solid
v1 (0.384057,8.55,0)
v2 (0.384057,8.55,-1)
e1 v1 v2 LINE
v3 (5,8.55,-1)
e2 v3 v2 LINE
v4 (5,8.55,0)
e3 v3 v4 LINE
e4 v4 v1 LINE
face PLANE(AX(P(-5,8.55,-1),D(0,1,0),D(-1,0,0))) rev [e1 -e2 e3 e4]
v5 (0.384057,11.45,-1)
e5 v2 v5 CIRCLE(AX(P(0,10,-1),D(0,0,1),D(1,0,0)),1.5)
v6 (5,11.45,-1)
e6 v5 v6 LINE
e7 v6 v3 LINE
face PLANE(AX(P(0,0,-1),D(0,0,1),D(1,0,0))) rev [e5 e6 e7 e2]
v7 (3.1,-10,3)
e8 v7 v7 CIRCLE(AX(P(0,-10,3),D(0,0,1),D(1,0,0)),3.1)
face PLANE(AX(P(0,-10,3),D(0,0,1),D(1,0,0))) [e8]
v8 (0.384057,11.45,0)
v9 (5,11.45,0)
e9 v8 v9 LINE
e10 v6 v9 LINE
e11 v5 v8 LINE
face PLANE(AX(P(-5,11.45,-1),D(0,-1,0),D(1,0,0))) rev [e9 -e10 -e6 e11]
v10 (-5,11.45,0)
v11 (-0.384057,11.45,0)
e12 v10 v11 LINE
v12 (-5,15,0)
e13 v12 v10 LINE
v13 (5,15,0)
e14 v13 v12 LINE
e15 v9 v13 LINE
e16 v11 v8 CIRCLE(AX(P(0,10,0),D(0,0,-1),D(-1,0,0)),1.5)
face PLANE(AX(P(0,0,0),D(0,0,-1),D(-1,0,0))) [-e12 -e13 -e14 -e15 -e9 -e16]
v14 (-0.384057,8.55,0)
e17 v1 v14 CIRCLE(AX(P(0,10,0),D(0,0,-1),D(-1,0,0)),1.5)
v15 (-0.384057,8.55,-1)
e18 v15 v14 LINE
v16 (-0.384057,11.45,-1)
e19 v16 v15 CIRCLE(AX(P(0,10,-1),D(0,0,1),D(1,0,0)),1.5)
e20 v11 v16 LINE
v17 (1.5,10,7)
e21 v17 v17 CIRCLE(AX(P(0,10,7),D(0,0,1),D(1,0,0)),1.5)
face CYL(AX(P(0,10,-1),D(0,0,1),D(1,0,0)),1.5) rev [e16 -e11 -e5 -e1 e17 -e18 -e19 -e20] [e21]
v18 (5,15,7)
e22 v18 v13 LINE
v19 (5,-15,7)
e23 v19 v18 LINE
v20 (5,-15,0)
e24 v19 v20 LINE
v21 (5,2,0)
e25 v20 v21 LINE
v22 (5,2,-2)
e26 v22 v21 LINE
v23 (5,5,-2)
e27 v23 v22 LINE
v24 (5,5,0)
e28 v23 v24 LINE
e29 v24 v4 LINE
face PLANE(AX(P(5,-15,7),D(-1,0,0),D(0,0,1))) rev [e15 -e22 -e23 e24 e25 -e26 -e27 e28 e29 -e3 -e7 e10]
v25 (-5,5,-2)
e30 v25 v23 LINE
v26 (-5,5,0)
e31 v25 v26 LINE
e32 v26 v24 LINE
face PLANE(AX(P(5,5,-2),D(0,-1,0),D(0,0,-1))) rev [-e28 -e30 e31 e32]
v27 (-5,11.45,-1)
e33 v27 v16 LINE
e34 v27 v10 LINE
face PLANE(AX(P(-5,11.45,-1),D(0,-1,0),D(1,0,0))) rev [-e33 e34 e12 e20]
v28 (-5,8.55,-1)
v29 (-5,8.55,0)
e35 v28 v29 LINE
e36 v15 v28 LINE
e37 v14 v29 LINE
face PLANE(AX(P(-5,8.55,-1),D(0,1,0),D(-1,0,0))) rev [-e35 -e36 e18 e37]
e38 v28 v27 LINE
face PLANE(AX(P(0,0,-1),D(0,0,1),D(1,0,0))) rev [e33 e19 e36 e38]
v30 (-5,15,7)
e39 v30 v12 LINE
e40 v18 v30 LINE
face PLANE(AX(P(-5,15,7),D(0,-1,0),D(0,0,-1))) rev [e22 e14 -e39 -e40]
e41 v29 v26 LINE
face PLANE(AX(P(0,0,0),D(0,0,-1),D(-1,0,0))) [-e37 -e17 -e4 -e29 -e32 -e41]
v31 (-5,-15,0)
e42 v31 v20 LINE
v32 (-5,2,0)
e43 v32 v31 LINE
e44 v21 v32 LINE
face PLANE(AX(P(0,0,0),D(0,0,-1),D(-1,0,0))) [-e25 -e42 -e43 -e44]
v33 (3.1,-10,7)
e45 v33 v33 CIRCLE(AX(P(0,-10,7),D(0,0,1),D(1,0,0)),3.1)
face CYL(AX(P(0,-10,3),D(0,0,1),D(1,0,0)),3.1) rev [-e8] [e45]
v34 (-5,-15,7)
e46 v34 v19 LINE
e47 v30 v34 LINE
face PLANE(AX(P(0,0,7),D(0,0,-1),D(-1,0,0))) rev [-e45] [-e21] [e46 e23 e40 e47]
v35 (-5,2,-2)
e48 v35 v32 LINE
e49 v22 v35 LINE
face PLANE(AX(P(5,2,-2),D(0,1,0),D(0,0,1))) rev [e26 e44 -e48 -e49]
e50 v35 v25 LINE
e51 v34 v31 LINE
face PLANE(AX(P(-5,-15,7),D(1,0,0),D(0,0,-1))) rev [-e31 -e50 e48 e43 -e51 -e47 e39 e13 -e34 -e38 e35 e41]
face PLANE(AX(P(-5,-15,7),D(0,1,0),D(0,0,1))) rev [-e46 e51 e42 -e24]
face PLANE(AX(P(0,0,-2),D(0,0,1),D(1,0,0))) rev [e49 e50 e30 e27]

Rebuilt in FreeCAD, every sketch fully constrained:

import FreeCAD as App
import Part
import Sketcher
from FreeCAD import Vector

doc = App.newDocument("Part")
body = doc.addObject("PartDesign::Body", "Body")

sketch1 = body.newObject("Sketcher::SketchObject", "Sketch")
sketch1.AttachmentSupport = (doc.getObject("XY_Plane"), [""])
sketch1.MapMode = "FlatFace"
sketch1.addGeometry([
    Part.LineSegment(Vector(-5, 15, 0), Vector(-5, -15, 0)),
    Part.LineSegment(Vector(-5, -15, 0), Vector(5, -15, 0)),
    Part.LineSegment(Vector(5, -15, 0), Vector(5, 15, 0)),
    Part.LineSegment(Vector(5, 15, 0), Vector(-5, 15, 0)),
], False)
sketch1.addConstraint([
    Sketcher.Constraint("Coincident", 0, 2, 1, 1),
    Sketcher.Constraint("Coincident", 1, 2, 2, 1),
    Sketcher.Constraint("Coincident", 2, 2, 3, 1),
    Sketcher.Constraint("Coincident", 3, 2, 0, 1),
    Sketcher.Constraint("Vertical", 0),
    Sketcher.Constraint("Horizontal", 1),
    Sketcher.Constraint("Vertical", 2),
    Sketcher.Constraint("Horizontal", 3),
    Sketcher.Constraint("Symmetric", 0, 2, 2, 2, -1, 1),
    Sketcher.Constraint("DistanceX", 1, 1, 1, 2, 10.0),
    Sketcher.Constraint("DistanceY", 0, 2, 0, 1, 30.0),
])
pad1 = body.newObject("PartDesign::Pad", "Pad")
pad1.Profile = sketch1
pad1.Length = 7

sketch2 = body.newObject("Sketcher::SketchObject", "Sketch001")
sketch2.AttachmentSupport = (doc.getObject("XY_Plane"), [""])
sketch2.MapMode = "FlatFace"
sketch2.AttachmentOffset = App.Placement(Vector(0, 0, 7), App.Rotation())
sketch2.addGeometry(Part.Circle(Vector(0, -10, 0), Vector(0, 0, 1), 3.1), False)
sketch2.addConstraint([
    Sketcher.Constraint("PointOnObject", 0, 3, -2),
    Sketcher.Constraint("Diameter", 0, 6.2),
    Sketcher.Constraint("DistanceY", 0, 3, -1, 1, 10.0),
])
pocket1 = body.newObject("PartDesign::Pocket", "Pocket")
pocket1.Profile = sketch2
pocket1.Length = 4

sketch3 = body.newObject("Sketcher::SketchObject", "Sketch002")
sketch3.AttachmentSupport = (doc.getObject("XY_Plane"), [""])
sketch3.MapMode = "FlatFace"
sketch3.addGeometry([
    Part.LineSegment(Vector(5, 11.4, 0), Vector(5, 8.6, 0)),
    Part.LineSegment(Vector(5, 8.6, 0), Vector(-5, 8.6, 0)),
    Part.LineSegment(Vector(-5, 8.6, 0), Vector(-5, 11.4, 0)),
    Part.LineSegment(Vector(-5, 11.4, 0), Vector(5, 11.4, 0)),
], False)
sketch3.addConstraint([
    Sketcher.Constraint("Coincident", 0, 2, 1, 1),
    Sketcher.Constraint("Coincident", 1, 2, 2, 1),
    Sketcher.Constraint("Coincident", 2, 2, 3, 1),
    Sketcher.Constraint("Coincident", 3, 2, 0, 1),
    Sketcher.Constraint("Vertical", 0),
    Sketcher.Constraint("Horizontal", 1),
    Sketcher.Constraint("Vertical", 2),
    Sketcher.Constraint("Horizontal", 3),
    Sketcher.Constraint("DistanceX", 1, 2, 1, 1, 10.0),
    Sketcher.Constraint("DistanceY", 0, 2, 0, 1, 2.9),
    Sketcher.Constraint("DistanceX", -1, 1, 0, 2, 5.0),
    Sketcher.Constraint("DistanceY", -1, 1, 0, 2, 8.55),
])
pad2 = body.newObject("PartDesign::Pad", "Pad001")
pad2.Profile = sketch3
pad2.Length = 1
pad2.Reversed = True

sketch4 = body.newObject("Sketcher::SketchObject", "Sketch003")
sketch4.AttachmentSupport = (doc.getObject("XY_Plane"), [""])
sketch4.MapMode = "FlatFace"
sketch4.AttachmentOffset = App.Placement(Vector(0, 0, 7), App.Rotation())
sketch4.addGeometry(Part.Circle(Vector(0, 10, 0), Vector(0, 0, 1), 1.5), False)
sketch4.addConstraint([
    Sketcher.Constraint("PointOnObject", 0, 3, -2),
    Sketcher.Constraint("Diameter", 0, 3.0),
    Sketcher.Constraint("DistanceY", -1, 1, 0, 3, 10.0),
])
pocket2 = body.newObject("PartDesign::Pocket", "Pocket001")
pocket2.Profile = sketch4
pocket2.Type = "ThroughAll"

sketch5 = body.newObject("Sketcher::SketchObject", "Sketch004")
sketch5.AttachmentSupport = (doc.getObject("XY_Plane"), [""])
sketch5.MapMode = "FlatFace"
sketch5.addGeometry([
    Part.LineSegment(Vector(5, 5, 0), Vector(5, 2, 0)),
    Part.LineSegment(Vector(5, 2, 0), Vector(-5, 2, 0)),
    Part.LineSegment(Vector(-5, 2, 0), Vector(-5, 5, 0)),
    Part.LineSegment(Vector(-5, 5, 0), Vector(5, 5, 0)),
], False)
sketch5.addConstraint([
    Sketcher.Constraint("Coincident", 0, 2, 1, 1),
    Sketcher.Constraint("Coincident", 1, 2, 2, 1),
    Sketcher.Constraint("Coincident", 2, 2, 3, 1),
    Sketcher.Constraint("Coincident", 3, 2, 0, 1),
    Sketcher.Constraint("Vertical", 0),
    Sketcher.Constraint("Horizontal", 1),
    Sketcher.Constraint("Vertical", 2),
    Sketcher.Constraint("Horizontal", 3),
    Sketcher.Constraint("DistanceX", 1, 2, 1, 1, 10.0),
    Sketcher.Constraint("DistanceY", 0, 2, 0, 1, 3.0),
    Sketcher.Constraint("DistanceX", -1, 1, 0, 2, 5.0),
    Sketcher.Constraint("DistanceY", -1, 1, 0, 2, 2.0),
])
pad3 = body.newObject("PartDesign::Pad", "Pad002")
pad3.Profile = sketch5
pad3.Length = 2
pad3.Reversed = True

doc.recompute()
